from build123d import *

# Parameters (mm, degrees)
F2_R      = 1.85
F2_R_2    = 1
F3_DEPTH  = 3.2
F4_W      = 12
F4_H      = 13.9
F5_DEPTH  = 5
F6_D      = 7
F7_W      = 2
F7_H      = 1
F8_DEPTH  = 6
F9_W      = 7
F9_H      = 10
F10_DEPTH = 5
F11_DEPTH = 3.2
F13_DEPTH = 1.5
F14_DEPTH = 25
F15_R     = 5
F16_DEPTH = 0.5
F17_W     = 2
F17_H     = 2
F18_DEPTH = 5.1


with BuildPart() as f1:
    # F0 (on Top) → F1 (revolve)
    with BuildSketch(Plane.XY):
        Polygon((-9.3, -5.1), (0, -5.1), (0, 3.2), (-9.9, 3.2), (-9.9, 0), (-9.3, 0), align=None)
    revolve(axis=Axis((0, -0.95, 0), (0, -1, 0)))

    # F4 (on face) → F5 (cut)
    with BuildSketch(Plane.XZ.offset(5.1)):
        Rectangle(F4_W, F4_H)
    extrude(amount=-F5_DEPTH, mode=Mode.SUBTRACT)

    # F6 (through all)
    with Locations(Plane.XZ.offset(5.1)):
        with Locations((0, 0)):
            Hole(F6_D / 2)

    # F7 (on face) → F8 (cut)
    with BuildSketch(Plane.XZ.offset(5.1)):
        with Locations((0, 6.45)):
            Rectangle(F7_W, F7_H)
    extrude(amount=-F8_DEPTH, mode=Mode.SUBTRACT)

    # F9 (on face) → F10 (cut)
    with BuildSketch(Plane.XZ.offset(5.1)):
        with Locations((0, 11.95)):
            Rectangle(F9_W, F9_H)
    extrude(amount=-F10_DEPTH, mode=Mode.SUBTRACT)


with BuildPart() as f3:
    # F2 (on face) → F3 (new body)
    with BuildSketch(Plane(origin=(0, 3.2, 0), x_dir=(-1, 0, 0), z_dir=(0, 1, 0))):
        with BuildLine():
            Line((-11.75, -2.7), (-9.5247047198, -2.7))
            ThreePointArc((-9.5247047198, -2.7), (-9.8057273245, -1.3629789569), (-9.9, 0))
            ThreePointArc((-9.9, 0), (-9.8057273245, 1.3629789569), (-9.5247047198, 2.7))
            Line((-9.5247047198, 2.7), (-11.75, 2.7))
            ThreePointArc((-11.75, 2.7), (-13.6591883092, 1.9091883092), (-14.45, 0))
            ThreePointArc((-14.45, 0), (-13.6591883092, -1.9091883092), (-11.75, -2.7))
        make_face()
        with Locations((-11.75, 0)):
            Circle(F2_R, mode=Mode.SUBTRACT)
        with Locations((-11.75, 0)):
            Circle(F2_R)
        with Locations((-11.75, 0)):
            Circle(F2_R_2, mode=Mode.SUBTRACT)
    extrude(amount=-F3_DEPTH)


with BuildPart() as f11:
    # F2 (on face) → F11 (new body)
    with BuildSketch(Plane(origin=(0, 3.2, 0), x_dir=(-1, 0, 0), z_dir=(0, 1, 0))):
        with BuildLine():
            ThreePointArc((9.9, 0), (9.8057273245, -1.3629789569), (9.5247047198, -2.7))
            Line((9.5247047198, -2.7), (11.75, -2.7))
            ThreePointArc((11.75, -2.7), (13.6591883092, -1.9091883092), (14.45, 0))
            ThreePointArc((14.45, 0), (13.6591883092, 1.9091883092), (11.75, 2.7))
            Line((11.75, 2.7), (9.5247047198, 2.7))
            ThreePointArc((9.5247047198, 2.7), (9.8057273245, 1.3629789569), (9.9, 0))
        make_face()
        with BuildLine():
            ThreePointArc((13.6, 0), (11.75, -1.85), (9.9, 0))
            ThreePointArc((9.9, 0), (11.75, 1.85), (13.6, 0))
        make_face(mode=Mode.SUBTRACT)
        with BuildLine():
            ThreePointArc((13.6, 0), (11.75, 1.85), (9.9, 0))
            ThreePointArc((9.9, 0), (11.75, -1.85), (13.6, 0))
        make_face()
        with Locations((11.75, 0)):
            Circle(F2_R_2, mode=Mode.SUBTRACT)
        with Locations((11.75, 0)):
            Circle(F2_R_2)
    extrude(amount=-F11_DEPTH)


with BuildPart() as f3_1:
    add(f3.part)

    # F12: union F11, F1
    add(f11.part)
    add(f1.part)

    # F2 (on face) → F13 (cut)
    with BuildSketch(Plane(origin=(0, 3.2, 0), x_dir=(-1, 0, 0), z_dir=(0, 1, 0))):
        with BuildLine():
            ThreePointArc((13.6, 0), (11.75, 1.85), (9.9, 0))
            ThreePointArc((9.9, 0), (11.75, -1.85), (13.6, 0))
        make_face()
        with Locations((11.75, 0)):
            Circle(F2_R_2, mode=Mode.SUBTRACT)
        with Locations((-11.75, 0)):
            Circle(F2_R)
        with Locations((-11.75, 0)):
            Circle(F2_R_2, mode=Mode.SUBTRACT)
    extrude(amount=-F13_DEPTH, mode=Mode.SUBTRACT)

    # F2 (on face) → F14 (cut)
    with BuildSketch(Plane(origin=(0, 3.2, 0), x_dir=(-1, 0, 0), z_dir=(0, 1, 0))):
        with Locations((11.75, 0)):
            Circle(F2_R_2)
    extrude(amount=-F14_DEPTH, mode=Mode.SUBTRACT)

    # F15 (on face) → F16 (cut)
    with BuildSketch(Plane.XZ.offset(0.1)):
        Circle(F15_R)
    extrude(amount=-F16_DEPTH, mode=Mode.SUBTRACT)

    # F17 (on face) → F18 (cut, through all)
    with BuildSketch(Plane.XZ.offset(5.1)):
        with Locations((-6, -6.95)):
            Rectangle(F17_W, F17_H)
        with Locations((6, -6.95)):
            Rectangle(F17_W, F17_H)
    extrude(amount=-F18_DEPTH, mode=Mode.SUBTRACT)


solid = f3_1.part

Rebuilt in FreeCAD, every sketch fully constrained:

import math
import FreeCAD as App
import Part
import Sketcher

doc = App.newDocument("Part")
body = doc.addObject("PartDesign::Body", "Body")

sketch1 = body.newObject("Sketcher::SketchObject", "Sketch")
sketch1.AttachmentSupport = (doc.getObject("XY_Plane"), [""])
sketch1.MapMode = "FlatFace"
sketch1.addGeometry([
    Part.LineSegment(App.Vector(-9.3, -5.1, 0), App.Vector(0, -5.1, 0)),
    Part.LineSegment(App.Vector(0, -5.1, 0), App.Vector(0, 3.2, 0)),
    Part.LineSegment(App.Vector(0, 3.2, 0), App.Vector(-9.9, 3.2, 0)),
    Part.LineSegment(App.Vector(-9.9, 3.2, 0), App.Vector(-9.9, 0, 0)),
    Part.LineSegment(App.Vector(-9.9, 0, 0), App.Vector(-9.3, 0, 0)),
    Part.LineSegment(App.Vector(-9.3, 0, 0), App.Vector(-9.3, -5.1, 0)),
], False)
sketch1.addConstraint([
    Sketcher.Constraint("Coincident", 0, 2, 1, 1),
    Sketcher.Constraint("Coincident", 1, 2, 2, 1),
    Sketcher.Constraint("Coincident", 2, 2, 3, 1),
    Sketcher.Constraint("Coincident", 3, 2, 4, 1),
    Sketcher.Constraint("Coincident", 4, 2, 5, 1),
    Sketcher.Constraint("Coincident", 5, 2, 0, 1),
    Sketcher.Constraint("Horizontal", 0),
    Sketcher.Constraint("Vertical", 1),
    Sketcher.Constraint("Horizontal", 2),
    Sketcher.Constraint("Vertical", 3),
    Sketcher.Constraint("Horizontal", 4),
    Sketcher.Constraint("Vertical", 5),
    Sketcher.Constraint("PointOnObject", 0, 2, -2),
    Sketcher.Constraint("PointOnObject", 3, 2, -1),
    Sketcher.Constraint("DistanceX", 0, 1, 0, 2, 9.3),
    Sketcher.Constraint("DistanceX", 2, 2, 2, 1, 9.9),
    Sketcher.Constraint("DistanceY", 1, 1, 1, 2, 8.3),
    Sketcher.Constraint("DistanceY", 3, 2, 3, 1, 3.2),
])
revolution = body.newObject("PartDesign::Revolution", "Revolution")
revolution.Profile = sketch1
revolution.ReferenceAxis = (sketch1, ["V_Axis"])
revolution.Angle = 360

sketch2 = body.newObject("Sketcher::SketchObject", "Sketch001")
sketch2.AttachmentSupport = (doc.getObject("XZ_Plane"), [""])
sketch2.MapMode = "FlatFace"
sketch2.AttachmentOffset = App.Placement(App.Vector(0, 0, 5.1), App.Rotation())
sketch2.addGeometry([
    Part.LineSegment(App.Vector(-6, 6.95, 0), App.Vector(-6, -6.95, 0)),
    Part.LineSegment(App.Vector(-6, -6.95, 0), App.Vector(6, -6.95, 0)),
    Part.LineSegment(App.Vector(6, -6.95, 0), App.Vector(6, 6.95, 0)),
    Part.LineSegment(App.Vector(6, 6.95, 0), App.Vector(-6, 6.95, 0)),
], False)
sketch2.addConstraint([
    Sketcher.Constraint("Coincident", 0, 2, 1, 1),
    Sketcher.Constraint("Coincident", 1, 2, 2, 1),
    Sketcher.Constraint("Coincident", 2, 2, 3, 1),
    Sketcher.Constraint("Coincident", 3, 2, 0, 1),
    Sketcher.Constraint("Vertical", 0),
    Sketcher.Constraint("Horizontal", 1),
    Sketcher.Constraint("Vertical", 2),
    Sketcher.Constraint("Horizontal", 3),
    Sketcher.Constraint("Symmetric", 0, 2, 2, 2, -1, 1),
    Sketcher.Constraint("DistanceX", 1, 1, 1, 2, 12.0),
    Sketcher.Constraint("DistanceY", 0, 2, 0, 1, 13.9),
])
pocket1 = body.newObject("PartDesign::Pocket", "Pocket")
pocket1.Profile = sketch2
pocket1.Length = 5

sketch3 = body.newObject("Sketcher::SketchObject", "Sketch002")
sketch3.AttachmentSupport = (doc.getObject("XZ_Plane"), [""])
sketch3.MapMode = "FlatFace"
sketch3.AttachmentOffset = App.Placement(App.Vector(0, 0, 5.1), App.Rotation())
sketch3.addGeometry(Part.Circle(App.Vector(0, 0, 0), App.Vector(0, 0, 1), 3.5), False)
sketch3.addConstraint([
    Sketcher.Constraint("Coincident", 0, 3, -1, 1),
    Sketcher.Constraint("Diameter", 0, 7.0),
])
doc.recompute()
hole = body.newObject("PartDesign::Hole", "Hole")
hole.Profile = sketch3
hole.ThreadType = "None"
hole.Diameter = 7
hole.DepthType = "ThroughAll"

sketch4 = body.newObject("Sketcher::SketchObject", "Sketch003")
sketch4.AttachmentSupport = (doc.getObject("XZ_Plane"), [""])
sketch4.MapMode = "FlatFace"
sketch4.AttachmentOffset = App.Placement(App.Vector(0, 0, 5.1), App.Rotation())
sketch4.addGeometry([
    Part.LineSegment(App.Vector(-1, 6.95, 0), App.Vector(-1, 5.95, 0)),
    Part.LineSegment(App.Vector(-1, 5.95, 0), App.Vector(1, 5.95, 0)),
    Part.LineSegment(App.Vector(1, 5.95, 0), App.Vector(1, 6.95, 0)),
    Part.LineSegment(App.Vector(1, 6.95, 0), App.Vector(-1, 6.95, 0)),
], False)
sketch4.addConstraint([
    Sketcher.Constraint("Coincident", 0, 2, 1, 1),
    Sketcher.Constraint("Coincident", 1, 2, 2, 1),
    Sketcher.Constraint("Coincident", 2, 2, 3, 1),
    Sketcher.Constraint("Coincident", 3, 2, 0, 1),
    Sketcher.Constraint("Vertical", 0),
    Sketcher.Constraint("Horizontal", 1),
    Sketcher.Constraint("Vertical", 2),
    Sketcher.Constraint("Horizontal", 3),
    Sketcher.Constraint("DistanceX", 1, 1, 1, 2, 2.0),
    Sketcher.Constraint("DistanceY", 0, 2, 0, 1, 1.0),
    Sketcher.Constraint("DistanceX", 0, 2, -1, 1, 1.0),
    Sketcher.Constraint("DistanceY", -1, 1, 0, 2, 5.95),
])
pocket2 = body.newObject("PartDesign::Pocket", "Pocket001")
pocket2.Profile = sketch4
pocket2.Length = 6

sketch5 = body.newObject("Sketcher::SketchObject", "Sketch004")
sketch5.AttachmentSupport = (doc.getObject("XZ_Plane"), [""])
sketch5.MapMode = "FlatFace"
sketch5.AttachmentOffset = App.Placement(App.Vector(0, 0, 5.1), App.Rotation())
sketch5.addGeometry([
    Part.LineSegment(App.Vector(-3.5, 16.95, 0), App.Vector(-3.5, 6.95, 0)),
    Part.LineSegment(App.Vector(-3.5, 6.95, 0), App.Vector(3.5, 6.95, 0)),
    Part.LineSegment(App.Vector(3.5, 6.95, 0), App.Vector(3.5, 16.95, 0)),
    Part.LineSegment(App.Vector(3.5, 16.95, 0), App.Vector(-3.5, 16.95, 0)),
], False)
sketch5.addConstraint([
    Sketcher.Constraint("Coincident", 0, 2, 1, 1),
    Sketcher.Constraint("Coincident", 1, 2, 2, 1),
    Sketcher.Constraint("Coincident", 2, 2, 3, 1),
    Sketcher.Constraint("Coincident", 3, 2, 0, 1),
    Sketcher.Constraint("Vertical", 0),
    Sketcher.Constraint("Horizontal", 1),
    Sketcher.Constraint("Vertical", 2),
    Sketcher.Constraint("Horizontal", 3),
    Sketcher.Constraint("DistanceX", 1, 1, 1, 2, 7.0),
    Sketcher.Constraint("DistanceY", 0, 2, 0, 1, 10.0),
    Sketcher.Constraint("DistanceX", 0, 2, -1, 1, 3.5),
    Sketcher.Constraint("DistanceY", -1, 1, 0, 2, 6.95),
])
pocket3 = body.newObject("PartDesign::Pocket", "Pocket002")
pocket3.Profile = sketch5
pocket3.Length = 5
body2 = doc.addObject("PartDesign::Body", "Body001")

sketch6 = body2.newObject("Sketcher::SketchObject", "Sketch005")
sketch6.AttachmentSupport = (doc.getObject("XZ_Plane001"), [""])
sketch6.MapMode = "FlatFace"
sketch6.AttachmentOffset = App.Placement(App.Vector(0, 0, -3.2), App.Rotation())
sketch6.addGeometry([
    Part.LineSegment(App.Vector(11.75, -2.7, 0), App.Vector(9.524705, -2.7, 0)),
    Part.ArcOfCircle(Part.Circle(App.Vector(0, 0, 0), App.Vector(0, 0, 1), 9.9), math.radians(-15.82662), math.radians(0)),
    Part.ArcOfCircle(Part.Circle(App.Vector(0, 0, 0), App.Vector(0, 0, 1), 9.9), math.radians(0), math.radians(15.82662)),
    Part.LineSegment(App.Vector(9.524705, 2.7, 0), App.Vector(11.75, 2.7, 0)),
    Part.ArcOfCircle(Part.Circle(App.Vector(11.75, 0, 0), App.Vector(0, 0, 1), 2.7), math.radians(0), math.radians(90)),
    Part.ArcOfCircle(Part.Circle(App.Vector(11.75, 0, 0), App.Vector(0, 0, 1), 2.7), math.radians(-90), math.radians(0)),
    Part.Circle(App.Vector(11.75, 0, 0), App.Vector(0, 0, 1), 1),
], False)
sketch6.addConstraint([
    Sketcher.Constraint("Coincident", 0, 2, 1, 1),
    Sketcher.Constraint("Tangent", 1, 2, 2, 1),
    Sketcher.Constraint("Coincident", 2, 2, 3, 1),
    Sketcher.Constraint("Tangent", 3, 2, 4, 2),
    Sketcher.Constraint("Tangent", 4, 1, 5, 2),
    Sketcher.Constraint("Tangent", 5, 1, 0, 1),
    Sketcher.Constraint("Horizontal", 0),
    Sketcher.Constraint("Horizontal", 3),
    Sketcher.Constraint("Coincident", 1, 3, -1, 1),
    Sketcher.Constraint("Coincident", 6, 3, 4, 3),
    Sketcher.Constraint("Equal", 1, 2),
    Sketcher.Constraint("Equal", 4, 5),
    Sketcher.Constraint("PointOnObject", 4, 3, -1),
    Sketcher.Constraint("PointOnObject", 1, 2, -1),
    Sketcher.Constraint("PointOnObject", 4, 1, -1),
    Sketcher.Constraint("Diameter", 6, 2.0),
    Sketcher.Constraint("Radius", 1, 9.9),
    Sketcher.Constraint("Radius", 4, 2.7),
    Sketcher.Constraint("DistanceX", -1, 1, 4, 3, 11.75),
])
pad1 = body2.newObject("PartDesign::Pad", "Pad")
pad1.Profile = sketch6
pad1.Length = 3.2
body3 = doc.addObject("PartDesign::Body", "Body002")

sketch7 = body3.newObject("Sketcher::SketchObject", "Sketch006")
sketch7.AttachmentSupport = (doc.getObject("XZ_Plane002"), [""])
sketch7.MapMode = "FlatFace"
sketch7.AttachmentOffset = App.Placement(App.Vector(0, 0, -3.2), App.Rotation())
sketch7.addGeometry([
    Part.LineSegment(App.Vector(-11.75, 2.7, 0), App.Vector(-9.524705, 2.7, 0)),
    Part.ArcOfCircle(Part.Circle(App.Vector(0, 0, 0), App.Vector(0, 0, 1), 9.9), math.radians(164.17338), math.radians(180)),
    Part.ArcOfCircle(Part.Circle(App.Vector(0, 0, 0), App.Vector(0, 0, 1), 9.9), math.radians(180), math.radians(195.82662)),
    Part.LineSegment(App.Vector(-9.524705, -2.7, 0), App.Vector(-11.75, -2.7, 0)),
    Part.ArcOfCircle(Part.Circle(App.Vector(-11.75, 0, 0), App.Vector(0, 0, 1), 2.7), math.radians(180), math.radians(270)),
    Part.ArcOfCircle(Part.Circle(App.Vector(-11.75, 0, 0), App.Vector(0, 0, 1), 2.7), math.radians(90), math.radians(180)),
], False)
sketch7.addConstraint([
    Sketcher.Constraint("Coincident", 0, 2, 1, 1),
    Sketcher.Constraint("Tangent", 1, 2, 2, 1),
    Sketcher.Constraint("Coincident", 2, 2, 3, 1),
    Sketcher.Constraint("Tangent", 3, 2, 4, 2),
    Sketcher.Constraint("Tangent", 4, 1, 5, 2),
    Sketcher.Constraint("Tangent", 5, 1, 0, 1),
    Sketcher.Constraint("Horizontal", 0),
    Sketcher.Constraint("Horizontal", 3),
    Sketcher.Constraint("Coincident", 1, 3, -1, 1),
    Sketcher.Constraint("Equal", 1, 2),
    Sketcher.Constraint("Equal", 4, 5),
    Sketcher.Constraint("PointOnObject", 4, 3, -1),
    Sketcher.Constraint("PointOnObject", 1, 2, -1),
    Sketcher.Constraint("PointOnObject", 4, 1, -1),
    Sketcher.Constraint("Radius", 1, 9.9),
    Sketcher.Constraint("Radius", 4, 2.7),
    Sketcher.Constraint("DistanceX", 4, 3, -1, 1, 11.75),
])
pad2 = body3.newObject("PartDesign::Pad", "Pad001")
pad2.Profile = sketch7
pad2.Length = 3.2
body2.AllowCompound = True
doc.recompute()

boolean = body2.newObject("PartDesign::Boolean", "Boolean")
boolean.Type = "Fuse"
boolean.addObjects([body3])
doc.recompute()

boolean2 = body2.newObject("PartDesign::Boolean", "Boolean001")
boolean2.Type = "Fuse"
boolean2.addObjects([body])

sketch8 = body2.newObject("Sketcher::SketchObject", "Sketch007")
sketch8.AttachmentSupport = (doc.getObject("XZ_Plane001"), [""])
sketch8.MapMode = "FlatFace"
sketch8.AttachmentOffset = App.Placement(App.Vector(0, 0, -3.2), App.Rotation())
sketch8.addGeometry([
    Part.Circle(App.Vector(-11.75, 0, 0), App.Vector(0, 0, 1), 1.85),
    Part.Circle(App.Vector(-11.75, 0, 0), App.Vector(0, 0, 1), 1),
    Part.Circle(App.Vector(11.75, 0, 0), App.Vector(0, 0, 1), 1.85),
    Part.Circle(App.Vector(11.75, 0, 0), App.Vector(0, 0, 1), 1),
], False)
sketch8.addConstraint([
    Sketcher.Constraint("Coincident", 1, 3, 0, 3),
    Sketcher.Constraint("Coincident", 3, 3, 2, 3),
    Sketcher.Constraint("Equal", 0, 2),
    Sketcher.Constraint("Equal", 1, 3),
    Sketcher.Constraint("Symmetric", 0, 3, 2, 3, -1, 1),
    Sketcher.Constraint("PointOnObject", 0, 3, -1),
    Sketcher.Constraint("Diameter", 1, 2.0),
    Sketcher.Constraint("Diameter", 0, 3.7),
    Sketcher.Constraint("DistanceX", 0, 3, 2, 3, 23.5),
])
pocket4 = body2.newObject("PartDesign::Pocket", "Pocket003")
pocket4.Profile = sketch8
pocket4.Length = 1.5
pocket4.Reversed = True

sketch9 = body2.newObject("Sketcher::SketchObject", "Sketch008")
sketch9.AttachmentSupport = (doc.getObject("XZ_Plane001"), [""])
sketch9.MapMode = "FlatFace"
sketch9.AttachmentOffset = App.Placement(App.Vector(0, 0, -3.2), App.Rotation())
sketch9.addGeometry(Part.Circle(App.Vector(-11.75, 0, 0), App.Vector(0, 0, 1), 1), False)
sketch9.addConstraint([
    Sketcher.Constraint("PointOnObject", 0, 3, -1),
    Sketcher.Constraint("Diameter", 0, 2.0),
    Sketcher.Constraint("DistanceX", 0, 3, -1, 1, 11.75),
])
pocket5 = body2.newObject("PartDesign::Pocket", "Pocket004")
pocket5.Profile = sketch9
pocket5.Length = 25
pocket5.Reversed = True

sketch10 = body2.newObject("Sketcher::SketchObject", "Sketch009")
sketch10.AttachmentSupport = (doc.getObject("XZ_Plane001"), [""])
sketch10.MapMode = "FlatFace"
sketch10.AttachmentOffset = App.Placement(App.Vector(0, 0, 0.1), App.Rotation())
sketch10.addGeometry(Part.Circle(App.Vector(0, 0, 0), App.Vector(0, 0, 1), 5), False)
sketch10.addConstraint([
    Sketcher.Constraint("Coincident", 0, 3, -1, 1),
    Sketcher.Constraint("Diameter", 0, 10.0),
])
pocket6 = body2.newObject("PartDesign::Pocket", "Pocket005")
pocket6.Profile = sketch10
pocket6.Length = 0.5

sketch11 = body2.newObject("Sketcher::SketchObject", "Sketch010")
sketch11.AttachmentSupport = (doc.getObject("XZ_Plane001"), [""])
sketch11.MapMode = "FlatFace"
sketch11.AttachmentOffset = App.Placement(App.Vector(0, 0, 5.1), App.Rotation())
sketch11.addGeometry([
    Part.LineSegment(App.Vector(-7, -5.95, 0), App.Vector(-7, -7.95, 0)),
    Part.LineSegment(App.Vector(-7, -7.95, 0), App.Vector(-5, -7.95, 0)),
    Part.LineSegment(App.Vector(-5, -7.95, 0), App.Vector(-5, -5.95, 0)),
    Part.LineSegment(App.Vector(-5, -5.95, 0), App.Vector(-7, -5.95, 0)),
    Part.LineSegment(App.Vector(5, -5.95, 0), App.Vector(5, -7.95, 0)),
    Part.LineSegment(App.Vector(5, -7.95, 0), App.Vector(7, -7.95, 0)),
    Part.LineSegment(App.Vector(7, -7.95, 0), App.Vector(7, -5.95, 0)),
    Part.LineSegment(App.Vector(7, -5.95, 0), App.Vector(5, -5.95, 0)),
], False)
sketch11.addConstraint([
    Sketcher.Constraint("Coincident", 0, 2, 1, 1),
    Sketcher.Constraint("Coincident", 1, 2, 2, 1),
    Sketcher.Constraint("Coincident", 2, 2, 3, 1),
    Sketcher.Constraint("Coincident", 3, 2, 0, 1),
    Sketcher.Constraint("Coincident", 4, 2, 5, 1),
    Sketcher.Constraint("Coincident", 5, 2, 6, 1),
    Sketcher.Constraint("Coincident", 6, 2, 7, 1),
    Sketcher.Constraint("Coincident", 7, 2, 4, 1),
    Sketcher.Constraint("Vertical", 0),
    Sketcher.Constraint("Horizontal", 1),
    Sketcher.Constraint("Vertical", 2),
    Sketcher.Constraint("Horizontal", 3),
    Sketcher.Constraint("Vertical", 4),
    Sketcher.Constraint("Horizontal", 5),
    Sketcher.Constraint("Vertical", 6),
    Sketcher.Constraint("Horizontal", 7),
    Sketcher.Constraint("Symmetric", 1, 2, 4, 2, -2),
    Sketcher.Constraint("Symmetric", 3, 2, 6, 2, -2),
    Sketcher.Constraint("Equal", 7, 0),
    Sketcher.Constraint("DistanceX", 1, 1, 1, 2, 2.0),
    Sketcher.Constraint("DistanceX", 0, 2, -1, 1, 7.0),
    Sketcher.Constraint("DistanceY", 0, 2, -1, 1, 7.95),
])
pocket7 = body2.newObject("PartDesign::Pocket", "Pocket006")
pocket7.Profile = sketch11
pocket7.Length = 5.1

doc.recompute()
